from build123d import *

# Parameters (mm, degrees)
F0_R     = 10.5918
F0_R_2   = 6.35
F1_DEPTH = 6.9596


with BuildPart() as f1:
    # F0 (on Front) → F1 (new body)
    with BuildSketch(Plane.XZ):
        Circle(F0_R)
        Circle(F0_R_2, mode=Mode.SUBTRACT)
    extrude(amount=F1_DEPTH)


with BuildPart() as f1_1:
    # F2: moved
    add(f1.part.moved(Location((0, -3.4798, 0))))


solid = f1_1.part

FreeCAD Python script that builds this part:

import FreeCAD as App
import Part
import Sketcher

V = App.Vector
Q = App.Units.Quantity

doc = App.newDocument("Part")
params = doc.addObject("Spreadsheet::Sheet", "Params")
for row, (alias, value) in enumerate([
    ("sketch1_diameter", "0.5 in"),
    ("sketch1_diameter2", "0.834 in"),
    ("pad1_length", "0.274 in"),
], start=1):
    params.set(f"A{row}", alias)
    params.set(f"B{row}", "=" + value)
    params.setAlias(f"B{row}", alias)

body = doc.addObject("PartDesign::Body", "Body")

sketch1 = body.newObject("Sketcher::SketchObject", "Sketch")
sketch1.AttachmentSupport = (doc.getObject("XZ_Plane"), [""])
sketch1.MapMode = "FlatFace"
sketch1.addGeometry([
    Part.Circle(V(0, 0, 0), V(0, 0, 1), 10.5918),
    Part.Circle(V(0, 0, 0), V(0, 0, 1), 6.35),
], False)
sketch1.addConstraint([
    Sketcher.Constraint("Coincident", 0, 3, -1, 1),
    Sketcher.Constraint("Coincident", 1, 3, -1, 1),
    Sketcher.Constraint("Diameter", 1, Q("0.5 in")),
    Sketcher.Constraint("Diameter", 0, Q("0.834 in")),
])
sketch1.setExpression("Constraints[2]", "Params.sketch1_diameter")
sketch1.setExpression("Constraints[3]", "Params.sketch1_diameter2")
pad1 = body.newObject("PartDesign::Pad", "Pad")
pad1.Profile = sketch1
pad1.setExpression("Length", "Params.pad1_length")
body2 = doc.addObject("PartDesign::Body", "Body001")
doc.recompute()

body.Placement = App.Placement(V(0, -3.4798, 0), App.Rotation(V(0, 0, 1), 0))
boolean = body2.newObject("PartDesign::Boolean", "Boolean")
boolean.Type = "Fuse"
boolean.addObjects([body])

doc.recompute()
